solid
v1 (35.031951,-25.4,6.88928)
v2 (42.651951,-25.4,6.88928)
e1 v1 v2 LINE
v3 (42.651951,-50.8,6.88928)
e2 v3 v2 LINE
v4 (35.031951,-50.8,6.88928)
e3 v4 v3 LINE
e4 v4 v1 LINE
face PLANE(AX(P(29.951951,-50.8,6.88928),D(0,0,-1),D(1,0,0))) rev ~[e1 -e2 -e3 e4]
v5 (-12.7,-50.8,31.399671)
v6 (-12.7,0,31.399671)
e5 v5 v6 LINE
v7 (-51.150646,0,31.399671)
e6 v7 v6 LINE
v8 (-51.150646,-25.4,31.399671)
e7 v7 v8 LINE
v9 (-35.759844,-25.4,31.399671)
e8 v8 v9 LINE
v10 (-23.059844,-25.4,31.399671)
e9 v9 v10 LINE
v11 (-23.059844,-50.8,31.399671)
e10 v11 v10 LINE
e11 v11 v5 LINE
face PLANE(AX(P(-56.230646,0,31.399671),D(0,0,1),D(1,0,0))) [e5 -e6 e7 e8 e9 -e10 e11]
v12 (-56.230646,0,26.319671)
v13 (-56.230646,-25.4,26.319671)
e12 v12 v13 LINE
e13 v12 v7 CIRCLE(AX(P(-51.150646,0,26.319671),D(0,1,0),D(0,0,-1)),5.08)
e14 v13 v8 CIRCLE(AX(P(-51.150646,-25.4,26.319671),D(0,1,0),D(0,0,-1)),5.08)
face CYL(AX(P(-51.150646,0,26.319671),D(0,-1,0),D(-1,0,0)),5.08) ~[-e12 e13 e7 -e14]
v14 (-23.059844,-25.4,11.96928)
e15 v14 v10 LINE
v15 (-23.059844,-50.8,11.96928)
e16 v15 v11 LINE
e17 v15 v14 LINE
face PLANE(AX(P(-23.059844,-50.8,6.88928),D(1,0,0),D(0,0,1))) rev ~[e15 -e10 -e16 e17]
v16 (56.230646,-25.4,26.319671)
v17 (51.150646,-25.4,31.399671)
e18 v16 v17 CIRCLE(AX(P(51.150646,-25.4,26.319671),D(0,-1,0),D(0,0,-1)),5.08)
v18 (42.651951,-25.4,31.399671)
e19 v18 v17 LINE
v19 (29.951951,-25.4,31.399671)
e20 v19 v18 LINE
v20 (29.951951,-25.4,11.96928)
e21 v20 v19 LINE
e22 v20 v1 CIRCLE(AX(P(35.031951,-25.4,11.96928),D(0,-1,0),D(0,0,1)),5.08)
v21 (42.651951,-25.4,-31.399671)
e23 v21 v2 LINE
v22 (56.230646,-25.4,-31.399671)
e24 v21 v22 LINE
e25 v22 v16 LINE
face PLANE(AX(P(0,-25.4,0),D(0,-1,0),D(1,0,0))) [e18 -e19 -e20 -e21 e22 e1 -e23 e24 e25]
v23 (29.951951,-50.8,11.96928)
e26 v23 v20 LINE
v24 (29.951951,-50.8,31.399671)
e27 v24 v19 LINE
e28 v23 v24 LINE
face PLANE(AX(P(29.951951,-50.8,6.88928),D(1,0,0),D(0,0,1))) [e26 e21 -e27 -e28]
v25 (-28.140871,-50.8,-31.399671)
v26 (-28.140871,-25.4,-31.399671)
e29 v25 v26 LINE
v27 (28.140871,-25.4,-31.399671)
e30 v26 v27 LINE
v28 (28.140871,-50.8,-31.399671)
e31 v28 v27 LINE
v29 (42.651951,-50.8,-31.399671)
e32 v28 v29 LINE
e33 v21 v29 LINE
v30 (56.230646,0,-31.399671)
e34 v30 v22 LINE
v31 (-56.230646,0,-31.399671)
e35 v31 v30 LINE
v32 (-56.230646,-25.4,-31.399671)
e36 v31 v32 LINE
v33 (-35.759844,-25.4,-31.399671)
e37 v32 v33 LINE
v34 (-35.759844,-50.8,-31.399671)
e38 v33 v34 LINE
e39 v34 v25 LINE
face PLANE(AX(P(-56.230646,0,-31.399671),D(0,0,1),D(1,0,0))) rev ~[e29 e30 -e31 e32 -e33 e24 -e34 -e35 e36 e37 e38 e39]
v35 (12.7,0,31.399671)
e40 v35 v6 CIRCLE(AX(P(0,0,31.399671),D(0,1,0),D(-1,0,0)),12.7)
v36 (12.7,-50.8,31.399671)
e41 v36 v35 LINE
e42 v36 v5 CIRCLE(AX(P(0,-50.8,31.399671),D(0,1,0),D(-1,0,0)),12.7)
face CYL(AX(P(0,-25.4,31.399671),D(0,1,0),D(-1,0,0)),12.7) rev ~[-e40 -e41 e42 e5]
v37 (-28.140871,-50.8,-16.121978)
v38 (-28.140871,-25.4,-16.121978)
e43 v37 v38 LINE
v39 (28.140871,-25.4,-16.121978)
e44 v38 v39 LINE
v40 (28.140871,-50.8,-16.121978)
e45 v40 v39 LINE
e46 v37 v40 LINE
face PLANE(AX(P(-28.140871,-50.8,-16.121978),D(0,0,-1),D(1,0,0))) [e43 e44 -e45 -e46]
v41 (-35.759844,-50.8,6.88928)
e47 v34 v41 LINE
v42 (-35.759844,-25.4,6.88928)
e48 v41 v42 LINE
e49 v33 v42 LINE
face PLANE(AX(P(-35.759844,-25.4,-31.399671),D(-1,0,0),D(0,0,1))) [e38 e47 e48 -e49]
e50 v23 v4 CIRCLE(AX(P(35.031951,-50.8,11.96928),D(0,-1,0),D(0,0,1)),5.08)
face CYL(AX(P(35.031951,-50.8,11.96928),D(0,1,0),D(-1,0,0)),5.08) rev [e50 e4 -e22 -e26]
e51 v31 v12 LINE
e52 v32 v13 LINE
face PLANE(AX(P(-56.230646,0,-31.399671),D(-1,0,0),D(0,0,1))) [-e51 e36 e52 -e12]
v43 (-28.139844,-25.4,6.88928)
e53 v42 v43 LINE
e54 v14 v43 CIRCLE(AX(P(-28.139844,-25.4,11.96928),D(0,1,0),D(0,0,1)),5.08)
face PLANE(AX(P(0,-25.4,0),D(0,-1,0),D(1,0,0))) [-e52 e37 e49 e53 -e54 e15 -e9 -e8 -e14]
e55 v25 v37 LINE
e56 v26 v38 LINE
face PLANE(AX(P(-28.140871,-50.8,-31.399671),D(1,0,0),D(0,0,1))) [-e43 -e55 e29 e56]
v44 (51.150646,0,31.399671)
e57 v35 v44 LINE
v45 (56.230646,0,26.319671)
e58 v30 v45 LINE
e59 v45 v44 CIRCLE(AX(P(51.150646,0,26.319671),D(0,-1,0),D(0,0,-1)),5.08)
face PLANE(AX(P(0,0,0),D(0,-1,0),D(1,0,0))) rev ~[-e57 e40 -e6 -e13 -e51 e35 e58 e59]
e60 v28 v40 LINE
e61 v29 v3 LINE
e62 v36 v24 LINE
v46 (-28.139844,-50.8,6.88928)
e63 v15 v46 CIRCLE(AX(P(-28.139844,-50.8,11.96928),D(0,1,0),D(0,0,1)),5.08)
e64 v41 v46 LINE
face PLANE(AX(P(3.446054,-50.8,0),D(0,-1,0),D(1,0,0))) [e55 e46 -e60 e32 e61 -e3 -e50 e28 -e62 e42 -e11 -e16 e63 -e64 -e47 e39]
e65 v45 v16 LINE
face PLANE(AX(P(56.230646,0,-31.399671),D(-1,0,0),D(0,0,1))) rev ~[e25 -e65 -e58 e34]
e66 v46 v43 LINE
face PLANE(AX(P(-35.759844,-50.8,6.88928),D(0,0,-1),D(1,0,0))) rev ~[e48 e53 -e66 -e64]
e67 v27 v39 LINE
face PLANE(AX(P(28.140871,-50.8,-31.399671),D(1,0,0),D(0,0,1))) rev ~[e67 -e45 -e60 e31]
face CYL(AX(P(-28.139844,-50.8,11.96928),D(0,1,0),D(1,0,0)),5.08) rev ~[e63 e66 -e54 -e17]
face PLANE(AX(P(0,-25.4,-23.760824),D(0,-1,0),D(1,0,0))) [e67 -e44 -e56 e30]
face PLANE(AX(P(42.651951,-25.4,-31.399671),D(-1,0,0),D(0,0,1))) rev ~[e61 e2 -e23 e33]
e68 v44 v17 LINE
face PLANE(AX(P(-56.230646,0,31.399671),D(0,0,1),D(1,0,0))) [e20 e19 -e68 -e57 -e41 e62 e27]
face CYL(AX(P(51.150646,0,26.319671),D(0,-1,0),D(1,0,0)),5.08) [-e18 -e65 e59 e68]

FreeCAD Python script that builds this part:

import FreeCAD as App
import Part
import Sketcher
Q = App.Units.Quantity


def edges_at(feature, points):
    """Names of the edges that pass closest to the given points."""
    edges = feature.Shape.Edges
    near = lambda p: min(range(len(edges)), key=lambda i: edges[i].distToShape(Part.Vertex(*p))[0])
    return sorted({f"Edge{near(p) + 1}" for p in points})

doc = App.newDocument("Part")
body = doc.addObject("PartDesign::Body", "Body")

# Sketch on XZ plane
sketch1 = body.newObject("Sketcher::SketchObject", "Sketch")
sketch1.AttachmentSupport = (doc.getObject("XZ_Plane"), [""])
sketch1.MapMode = "FlatFace"
sketch1.addGeometry([
    Part.LineSegment(App.Vector(-56.230646, 31.399671, 0), App.Vector(-56.230646, -31.399671, 0)),
    Part.LineSegment(App.Vector(-56.230646, -31.399671, 0), App.Vector(56.230646, -31.399671, 0)),
    Part.LineSegment(App.Vector(56.230646, -31.399671, 0), App.Vector(56.230646, 31.399671, 0)),
    Part.LineSegment(App.Vector(56.230646, 31.399671, 0), App.Vector(-56.230646, 31.399671, 0)),
], False)
sketch1.addConstraint([
    Sketcher.Constraint("Coincident", 0, 2, 1, 1),
    Sketcher.Constraint("Coincident", 1, 2, 2, 1),
    Sketcher.Constraint("Coincident", 2, 2, 3, 1),
    Sketcher.Constraint("Coincident", 3, 2, 0, 1),
    Sketcher.Constraint("Vertical", 0),
    Sketcher.Constraint("Horizontal", 1),
    Sketcher.Constraint("Vertical", 2),
    Sketcher.Constraint("Horizontal", 3),
    Sketcher.Constraint("Symmetric", 0, 2, 2, 2, -1, 1),
    Sketcher.Constraint("DistanceX", 1, 1, 1, 2, Q("112.461291 mm")),
    Sketcher.Constraint("DistanceY", 0, 2, 0, 1, Q("62.799342 mm")),
])
pad1 = body.newObject("PartDesign::Pad", "Pad")
pad1.Profile = sketch1
pad1.Length = Q("1 in")
doc.recompute()

fillet = body.newObject("PartDesign::Fillet", "Fillet")
fillet.Base = (pad1, edges_at(pad1, [(-56.231, -12.7, 31.4), (56.231, -12.7, 31.4)]))
fillet.Radius = Q("0.2 in")

# Sketch on XZ plane
sketch2 = body.newObject("Sketcher::SketchObject", "Sketch001")
sketch2.AttachmentSupport = (doc.getObject("XZ_Plane"), [""])
sketch2.MapMode = "FlatFace"
sketch2.AttachmentOffset = App.Placement(App.Vector(0, 0, 1 * 25.4), App.Rotation())
sketch2.addGeometry([
    Part.LineSegment(App.Vector(-35.759844, 31.399671, 0), App.Vector(-35.759844, -31.399671, 0)),
    Part.LineSegment(App.Vector(-35.759844, -31.399671, 0), App.Vector(42.651951, -31.399671, 0)),
    Part.LineSegment(App.Vector(42.651951, -31.399671, 0), App.Vector(42.651951, 31.399671, 0)),
    Part.LineSegment(App.Vector(42.651951, 31.399671, 0), App.Vector(-35.759844, 31.399671, 0)),
], False)
sketch2.addConstraint([
    Sketcher.Constraint("Coincident", 0, 2, 1, 1),
    Sketcher.Constraint("Coincident", 1, 2, 2, 1),
    Sketcher.Constraint("Coincident", 2, 2, 3, 1),
    Sketcher.Constraint("Coincident", 3, 2, 0, 1),
    Sketcher.Constraint("Vertical", 0),
    Sketcher.Constraint("Horizontal", 1),
    Sketcher.Constraint("Vertical", 2),
    Sketcher.Constraint("Horizontal", 3),
    Sketcher.Constraint("DistanceY", 0, 2, 0, 1, Q("62.799342 mm")),
    Sketcher.Constraint("DistanceX", 1, 1, 1, 2, Q("78.411795 mm")),
    Sketcher.Constraint("DistanceY", 0, 2, -1, 1, Q("31.399671 mm")),
    Sketcher.Constraint("DistanceX", -1, 1, 1, 2, Q("42.651951 mm")),
])
pad2 = body.newObject("PartDesign::Pad", "Pad001")
pad2.Profile = sketch2
pad2.Length = Q("1 in")

# Sketch on XY plane
sketch3 = body.newObject("Sketcher::SketchObject", "Sketch002")
sketch3.AttachmentSupport = (doc.getObject("XY_Plane"), [""])
sketch3.MapMode = "FlatFace"
sketch3.AttachmentOffset = App.Placement(App.Vector(0, 0, 31.399671), App.Rotation())
sketch3.addGeometry([
    Part.LineSegment(App.Vector(-12.7, 0, 0), App.Vector(-12.7, -50.8, 0)),
    Part.LineSegment(App.Vector(-12.7, -50.8, 0), App.Vector(0, -50.8, 0)),
    Part.LineSegment(App.Vector(0, -50.8, 0), App.Vector(0, 0, 0)),
    Part.LineSegment(App.Vector(0, 0, 0), App.Vector(-12.7, 0, 0)),
], False)
sketch3.addConstraint([
    Sketcher.Constraint("Coincident", 0, 2, 1, 1),
    Sketcher.Constraint("Coincident", 1, 2, 2, 1),
    Sketcher.Constraint("Coincident", 2, 2, 3, 1),
    Sketcher.Constraint("Coincident", 3, 2, 0, 1),
    Sketcher.Constraint("Vertical", 0),
    Sketcher.Constraint("Horizontal", 1),
    Sketcher.Constraint("Vertical", 2),
    Sketcher.Constraint("Horizontal", 3),
    Sketcher.Constraint("Coincident", 2, 2, -1, 1),
    Sketcher.Constraint("DistanceY", 0, 2, 0, 1, Q("2 in")),
    Sketcher.Constraint("DistanceX", 1, 1, 1, 2, Q("0.5 in")),
])
groove = body.newObject("PartDesign::Groove", "Groove")
groove.Profile = sketch3
groove.ReferenceAxis = (sketch3, ["V_Axis"])
groove.Angle = 360

# Sketch on XZ plane
sketch4 = body.newObject("Sketcher::SketchObject", "Sketch003")
sketch4.AttachmentSupport = (doc.getObject("XZ_Plane"), [""])
sketch4.MapMode = "FlatFace"
sketch4.AttachmentOffset = App.Placement(App.Vector(0, 0, 2 * 25.4), App.Rotation())
sketch4.addGeometry([
    Part.LineSegment(App.Vector(-28.140871, -16.121978, 0), App.Vector(-28.140871, -31.399671, 0)),
    Part.LineSegment(App.Vector(-28.140871, -31.399671, 0), App.Vector(28.140871, -31.399671, 0)),
    Part.LineSegment(App.Vector(28.140871, -31.399671, 0), App.Vector(28.140871, -16.121978, 0)),
    Part.LineSegment(App.Vector(28.140871, -16.121978, 0), App.Vector(-28.140871, -16.121978, 0)),
], False)
sketch4.addConstraint([
    Sketcher.Constraint("Coincident", 0, 2, 1, 1),
    Sketcher.Constraint("Coincident", 1, 2, 2, 1),
    Sketcher.Constraint("Coincident", 2, 2, 3, 1),
    Sketcher.Constraint("Coincident", 3, 2, 0, 1),
    Sketcher.Constraint("Vertical", 0),
    Sketcher.Constraint("Horizontal", 1),
    Sketcher.Constraint("Vertical", 2),
    Sketcher.Constraint("Horizontal", 3),
    Sketcher.Constraint("DistanceX", 1, 1, 1, 2, Q("56.281742 mm")),
    Sketcher.Constraint("DistanceY", 0, 2, 0, 1, Q("15.277693 mm")),
    Sketcher.Constraint("DistanceX", 0, 2, -1, 1, Q("28.140871 mm")),
    Sketcher.Constraint("DistanceY", 0, 2, -1, 1, Q("31.399671 mm")),
])
pocket1 = body.newObject("PartDesign::Pocket", "Pocket")
pocket1.Profile = sketch4
pocket1.Length = Q("1 in")

# Sketch on XZ plane
sketch5 = body.newObject("Sketcher::SketchObject", "Sketch004")
sketch5.AttachmentSupport = (doc.getObject("XZ_Plane"), [""])
sketch5.MapMode = "FlatFace"
sketch5.AttachmentOffset = App.Placement(App.Vector(0, 0, 2 * 25.4), App.Rotation())
sketch5.addGeometry([
    Part.LineSegment(App.Vector(-35.759844, 31.399671, 0), App.Vector(-35.759844, 6.88928, 0)),  # 0
    Part.LineSegment(App.Vector(-35.759844, 6.88928, 0), App.Vector(-23.059844, 6.88928, 0)),  # 1
    Part.LineSegment(App.Vector(-23.059844, 6.88928, 0), App.Vector(-23.059844, 31.399671, 0)),  # 2
    Part.LineSegment(App.Vector(-23.059844, 31.399671, 0), App.Vector(-35.759844, 31.399671, 0)),  # 3
    Part.LineSegment(App.Vector(29.951951, 31.399671, 0), App.Vector(29.951951, 6.88928, 0)),  # 4
    Part.LineSegment(App.Vector(29.951951, 6.88928, 0), App.Vector(42.651951, 6.88928, 0)),  # 5
    Part.LineSegment(App.Vector(42.651951, 6.88928, 0), App.Vector(42.651951, 31.399671, 0)),  # 6
    Part.LineSegment(App.Vector(42.651951, 31.399671, 0), App.Vector(29.951951, 31.399671, 0)),  # 7
], False)
sketch5.addConstraint([
    Sketcher.Constraint("Coincident", 0, 2, 1, 1),
    Sketcher.Constraint("Coincident", 1, 2, 2, 1),
    Sketcher.Constraint("Coincident", 2, 2, 3, 1),
    Sketcher.Constraint("Coincident", 3, 2, 0, 1),
    Sketcher.Constraint("Coincident", 4, 2, 5, 1),
    Sketcher.Constraint("Coincident", 5, 2, 6, 1),
    Sketcher.Constraint("Coincident", 6, 2, 7, 1),
    Sketcher.Constraint("Coincident", 7, 2, 4, 1),
    Sketcher.Constraint("Vertical", 0),
    Sketcher.Constraint("Horizontal", 1),
    Sketcher.Constraint("Vertical", 2),
    Sketcher.Constraint("Horizontal", 3),
    Sketcher.Constraint("Vertical", 4),
    Sketcher.Constraint("Horizontal", 5),
    Sketcher.Constraint("Vertical", 6),
    Sketcher.Constraint("Horizontal", 7),
    Sketcher.Constraint("Horizontal", 1, 2, 4, 2),
    Sketcher.Constraint("Horizontal", 3, 2, 6, 2),
    Sketcher.Constraint("Equal", 3, 5),
    Sketcher.Constraint("DistanceX", 1, 1, 1, 2, Q("0.5 in")),
    Sketcher.Constraint("DistanceY", 0, 2, 0, 1, Q("24.510391 mm")),
    Sketcher.Constraint("DistanceY", -1, 1, 0, 2, Q("6.88928 mm")),
    Sketcher.Constraint("DistanceX", -1, 1, 4, 2, Q("29.951951 mm")),
    Sketcher.Constraint("DistanceX", 0, 2, -1, 1, Q("35.759844 mm")),
])
pocket2 = body.newObject("PartDesign::Pocket", "Pocket001")
pocket2.Profile = sketch5
pocket2.Length = Q("1 in")
doc.recompute()

fillet2 = body.newObject("PartDesign::Fillet", "Fillet001")
fillet2.Base = (pocket2, edges_at(pocket2, [(-23.06, -38.1, 6.889)]))
fillet2.Radius = Q("0.2 in")
doc.recompute()

fillet3 = body.newObject("PartDesign::Fillet", "Fillet002")
fillet3.Base = (fillet2, edges_at(fillet2, [(29.952, -38.1, 6.889)]))
fillet3.Radius = Q("0.2 in")

doc.recompute()
